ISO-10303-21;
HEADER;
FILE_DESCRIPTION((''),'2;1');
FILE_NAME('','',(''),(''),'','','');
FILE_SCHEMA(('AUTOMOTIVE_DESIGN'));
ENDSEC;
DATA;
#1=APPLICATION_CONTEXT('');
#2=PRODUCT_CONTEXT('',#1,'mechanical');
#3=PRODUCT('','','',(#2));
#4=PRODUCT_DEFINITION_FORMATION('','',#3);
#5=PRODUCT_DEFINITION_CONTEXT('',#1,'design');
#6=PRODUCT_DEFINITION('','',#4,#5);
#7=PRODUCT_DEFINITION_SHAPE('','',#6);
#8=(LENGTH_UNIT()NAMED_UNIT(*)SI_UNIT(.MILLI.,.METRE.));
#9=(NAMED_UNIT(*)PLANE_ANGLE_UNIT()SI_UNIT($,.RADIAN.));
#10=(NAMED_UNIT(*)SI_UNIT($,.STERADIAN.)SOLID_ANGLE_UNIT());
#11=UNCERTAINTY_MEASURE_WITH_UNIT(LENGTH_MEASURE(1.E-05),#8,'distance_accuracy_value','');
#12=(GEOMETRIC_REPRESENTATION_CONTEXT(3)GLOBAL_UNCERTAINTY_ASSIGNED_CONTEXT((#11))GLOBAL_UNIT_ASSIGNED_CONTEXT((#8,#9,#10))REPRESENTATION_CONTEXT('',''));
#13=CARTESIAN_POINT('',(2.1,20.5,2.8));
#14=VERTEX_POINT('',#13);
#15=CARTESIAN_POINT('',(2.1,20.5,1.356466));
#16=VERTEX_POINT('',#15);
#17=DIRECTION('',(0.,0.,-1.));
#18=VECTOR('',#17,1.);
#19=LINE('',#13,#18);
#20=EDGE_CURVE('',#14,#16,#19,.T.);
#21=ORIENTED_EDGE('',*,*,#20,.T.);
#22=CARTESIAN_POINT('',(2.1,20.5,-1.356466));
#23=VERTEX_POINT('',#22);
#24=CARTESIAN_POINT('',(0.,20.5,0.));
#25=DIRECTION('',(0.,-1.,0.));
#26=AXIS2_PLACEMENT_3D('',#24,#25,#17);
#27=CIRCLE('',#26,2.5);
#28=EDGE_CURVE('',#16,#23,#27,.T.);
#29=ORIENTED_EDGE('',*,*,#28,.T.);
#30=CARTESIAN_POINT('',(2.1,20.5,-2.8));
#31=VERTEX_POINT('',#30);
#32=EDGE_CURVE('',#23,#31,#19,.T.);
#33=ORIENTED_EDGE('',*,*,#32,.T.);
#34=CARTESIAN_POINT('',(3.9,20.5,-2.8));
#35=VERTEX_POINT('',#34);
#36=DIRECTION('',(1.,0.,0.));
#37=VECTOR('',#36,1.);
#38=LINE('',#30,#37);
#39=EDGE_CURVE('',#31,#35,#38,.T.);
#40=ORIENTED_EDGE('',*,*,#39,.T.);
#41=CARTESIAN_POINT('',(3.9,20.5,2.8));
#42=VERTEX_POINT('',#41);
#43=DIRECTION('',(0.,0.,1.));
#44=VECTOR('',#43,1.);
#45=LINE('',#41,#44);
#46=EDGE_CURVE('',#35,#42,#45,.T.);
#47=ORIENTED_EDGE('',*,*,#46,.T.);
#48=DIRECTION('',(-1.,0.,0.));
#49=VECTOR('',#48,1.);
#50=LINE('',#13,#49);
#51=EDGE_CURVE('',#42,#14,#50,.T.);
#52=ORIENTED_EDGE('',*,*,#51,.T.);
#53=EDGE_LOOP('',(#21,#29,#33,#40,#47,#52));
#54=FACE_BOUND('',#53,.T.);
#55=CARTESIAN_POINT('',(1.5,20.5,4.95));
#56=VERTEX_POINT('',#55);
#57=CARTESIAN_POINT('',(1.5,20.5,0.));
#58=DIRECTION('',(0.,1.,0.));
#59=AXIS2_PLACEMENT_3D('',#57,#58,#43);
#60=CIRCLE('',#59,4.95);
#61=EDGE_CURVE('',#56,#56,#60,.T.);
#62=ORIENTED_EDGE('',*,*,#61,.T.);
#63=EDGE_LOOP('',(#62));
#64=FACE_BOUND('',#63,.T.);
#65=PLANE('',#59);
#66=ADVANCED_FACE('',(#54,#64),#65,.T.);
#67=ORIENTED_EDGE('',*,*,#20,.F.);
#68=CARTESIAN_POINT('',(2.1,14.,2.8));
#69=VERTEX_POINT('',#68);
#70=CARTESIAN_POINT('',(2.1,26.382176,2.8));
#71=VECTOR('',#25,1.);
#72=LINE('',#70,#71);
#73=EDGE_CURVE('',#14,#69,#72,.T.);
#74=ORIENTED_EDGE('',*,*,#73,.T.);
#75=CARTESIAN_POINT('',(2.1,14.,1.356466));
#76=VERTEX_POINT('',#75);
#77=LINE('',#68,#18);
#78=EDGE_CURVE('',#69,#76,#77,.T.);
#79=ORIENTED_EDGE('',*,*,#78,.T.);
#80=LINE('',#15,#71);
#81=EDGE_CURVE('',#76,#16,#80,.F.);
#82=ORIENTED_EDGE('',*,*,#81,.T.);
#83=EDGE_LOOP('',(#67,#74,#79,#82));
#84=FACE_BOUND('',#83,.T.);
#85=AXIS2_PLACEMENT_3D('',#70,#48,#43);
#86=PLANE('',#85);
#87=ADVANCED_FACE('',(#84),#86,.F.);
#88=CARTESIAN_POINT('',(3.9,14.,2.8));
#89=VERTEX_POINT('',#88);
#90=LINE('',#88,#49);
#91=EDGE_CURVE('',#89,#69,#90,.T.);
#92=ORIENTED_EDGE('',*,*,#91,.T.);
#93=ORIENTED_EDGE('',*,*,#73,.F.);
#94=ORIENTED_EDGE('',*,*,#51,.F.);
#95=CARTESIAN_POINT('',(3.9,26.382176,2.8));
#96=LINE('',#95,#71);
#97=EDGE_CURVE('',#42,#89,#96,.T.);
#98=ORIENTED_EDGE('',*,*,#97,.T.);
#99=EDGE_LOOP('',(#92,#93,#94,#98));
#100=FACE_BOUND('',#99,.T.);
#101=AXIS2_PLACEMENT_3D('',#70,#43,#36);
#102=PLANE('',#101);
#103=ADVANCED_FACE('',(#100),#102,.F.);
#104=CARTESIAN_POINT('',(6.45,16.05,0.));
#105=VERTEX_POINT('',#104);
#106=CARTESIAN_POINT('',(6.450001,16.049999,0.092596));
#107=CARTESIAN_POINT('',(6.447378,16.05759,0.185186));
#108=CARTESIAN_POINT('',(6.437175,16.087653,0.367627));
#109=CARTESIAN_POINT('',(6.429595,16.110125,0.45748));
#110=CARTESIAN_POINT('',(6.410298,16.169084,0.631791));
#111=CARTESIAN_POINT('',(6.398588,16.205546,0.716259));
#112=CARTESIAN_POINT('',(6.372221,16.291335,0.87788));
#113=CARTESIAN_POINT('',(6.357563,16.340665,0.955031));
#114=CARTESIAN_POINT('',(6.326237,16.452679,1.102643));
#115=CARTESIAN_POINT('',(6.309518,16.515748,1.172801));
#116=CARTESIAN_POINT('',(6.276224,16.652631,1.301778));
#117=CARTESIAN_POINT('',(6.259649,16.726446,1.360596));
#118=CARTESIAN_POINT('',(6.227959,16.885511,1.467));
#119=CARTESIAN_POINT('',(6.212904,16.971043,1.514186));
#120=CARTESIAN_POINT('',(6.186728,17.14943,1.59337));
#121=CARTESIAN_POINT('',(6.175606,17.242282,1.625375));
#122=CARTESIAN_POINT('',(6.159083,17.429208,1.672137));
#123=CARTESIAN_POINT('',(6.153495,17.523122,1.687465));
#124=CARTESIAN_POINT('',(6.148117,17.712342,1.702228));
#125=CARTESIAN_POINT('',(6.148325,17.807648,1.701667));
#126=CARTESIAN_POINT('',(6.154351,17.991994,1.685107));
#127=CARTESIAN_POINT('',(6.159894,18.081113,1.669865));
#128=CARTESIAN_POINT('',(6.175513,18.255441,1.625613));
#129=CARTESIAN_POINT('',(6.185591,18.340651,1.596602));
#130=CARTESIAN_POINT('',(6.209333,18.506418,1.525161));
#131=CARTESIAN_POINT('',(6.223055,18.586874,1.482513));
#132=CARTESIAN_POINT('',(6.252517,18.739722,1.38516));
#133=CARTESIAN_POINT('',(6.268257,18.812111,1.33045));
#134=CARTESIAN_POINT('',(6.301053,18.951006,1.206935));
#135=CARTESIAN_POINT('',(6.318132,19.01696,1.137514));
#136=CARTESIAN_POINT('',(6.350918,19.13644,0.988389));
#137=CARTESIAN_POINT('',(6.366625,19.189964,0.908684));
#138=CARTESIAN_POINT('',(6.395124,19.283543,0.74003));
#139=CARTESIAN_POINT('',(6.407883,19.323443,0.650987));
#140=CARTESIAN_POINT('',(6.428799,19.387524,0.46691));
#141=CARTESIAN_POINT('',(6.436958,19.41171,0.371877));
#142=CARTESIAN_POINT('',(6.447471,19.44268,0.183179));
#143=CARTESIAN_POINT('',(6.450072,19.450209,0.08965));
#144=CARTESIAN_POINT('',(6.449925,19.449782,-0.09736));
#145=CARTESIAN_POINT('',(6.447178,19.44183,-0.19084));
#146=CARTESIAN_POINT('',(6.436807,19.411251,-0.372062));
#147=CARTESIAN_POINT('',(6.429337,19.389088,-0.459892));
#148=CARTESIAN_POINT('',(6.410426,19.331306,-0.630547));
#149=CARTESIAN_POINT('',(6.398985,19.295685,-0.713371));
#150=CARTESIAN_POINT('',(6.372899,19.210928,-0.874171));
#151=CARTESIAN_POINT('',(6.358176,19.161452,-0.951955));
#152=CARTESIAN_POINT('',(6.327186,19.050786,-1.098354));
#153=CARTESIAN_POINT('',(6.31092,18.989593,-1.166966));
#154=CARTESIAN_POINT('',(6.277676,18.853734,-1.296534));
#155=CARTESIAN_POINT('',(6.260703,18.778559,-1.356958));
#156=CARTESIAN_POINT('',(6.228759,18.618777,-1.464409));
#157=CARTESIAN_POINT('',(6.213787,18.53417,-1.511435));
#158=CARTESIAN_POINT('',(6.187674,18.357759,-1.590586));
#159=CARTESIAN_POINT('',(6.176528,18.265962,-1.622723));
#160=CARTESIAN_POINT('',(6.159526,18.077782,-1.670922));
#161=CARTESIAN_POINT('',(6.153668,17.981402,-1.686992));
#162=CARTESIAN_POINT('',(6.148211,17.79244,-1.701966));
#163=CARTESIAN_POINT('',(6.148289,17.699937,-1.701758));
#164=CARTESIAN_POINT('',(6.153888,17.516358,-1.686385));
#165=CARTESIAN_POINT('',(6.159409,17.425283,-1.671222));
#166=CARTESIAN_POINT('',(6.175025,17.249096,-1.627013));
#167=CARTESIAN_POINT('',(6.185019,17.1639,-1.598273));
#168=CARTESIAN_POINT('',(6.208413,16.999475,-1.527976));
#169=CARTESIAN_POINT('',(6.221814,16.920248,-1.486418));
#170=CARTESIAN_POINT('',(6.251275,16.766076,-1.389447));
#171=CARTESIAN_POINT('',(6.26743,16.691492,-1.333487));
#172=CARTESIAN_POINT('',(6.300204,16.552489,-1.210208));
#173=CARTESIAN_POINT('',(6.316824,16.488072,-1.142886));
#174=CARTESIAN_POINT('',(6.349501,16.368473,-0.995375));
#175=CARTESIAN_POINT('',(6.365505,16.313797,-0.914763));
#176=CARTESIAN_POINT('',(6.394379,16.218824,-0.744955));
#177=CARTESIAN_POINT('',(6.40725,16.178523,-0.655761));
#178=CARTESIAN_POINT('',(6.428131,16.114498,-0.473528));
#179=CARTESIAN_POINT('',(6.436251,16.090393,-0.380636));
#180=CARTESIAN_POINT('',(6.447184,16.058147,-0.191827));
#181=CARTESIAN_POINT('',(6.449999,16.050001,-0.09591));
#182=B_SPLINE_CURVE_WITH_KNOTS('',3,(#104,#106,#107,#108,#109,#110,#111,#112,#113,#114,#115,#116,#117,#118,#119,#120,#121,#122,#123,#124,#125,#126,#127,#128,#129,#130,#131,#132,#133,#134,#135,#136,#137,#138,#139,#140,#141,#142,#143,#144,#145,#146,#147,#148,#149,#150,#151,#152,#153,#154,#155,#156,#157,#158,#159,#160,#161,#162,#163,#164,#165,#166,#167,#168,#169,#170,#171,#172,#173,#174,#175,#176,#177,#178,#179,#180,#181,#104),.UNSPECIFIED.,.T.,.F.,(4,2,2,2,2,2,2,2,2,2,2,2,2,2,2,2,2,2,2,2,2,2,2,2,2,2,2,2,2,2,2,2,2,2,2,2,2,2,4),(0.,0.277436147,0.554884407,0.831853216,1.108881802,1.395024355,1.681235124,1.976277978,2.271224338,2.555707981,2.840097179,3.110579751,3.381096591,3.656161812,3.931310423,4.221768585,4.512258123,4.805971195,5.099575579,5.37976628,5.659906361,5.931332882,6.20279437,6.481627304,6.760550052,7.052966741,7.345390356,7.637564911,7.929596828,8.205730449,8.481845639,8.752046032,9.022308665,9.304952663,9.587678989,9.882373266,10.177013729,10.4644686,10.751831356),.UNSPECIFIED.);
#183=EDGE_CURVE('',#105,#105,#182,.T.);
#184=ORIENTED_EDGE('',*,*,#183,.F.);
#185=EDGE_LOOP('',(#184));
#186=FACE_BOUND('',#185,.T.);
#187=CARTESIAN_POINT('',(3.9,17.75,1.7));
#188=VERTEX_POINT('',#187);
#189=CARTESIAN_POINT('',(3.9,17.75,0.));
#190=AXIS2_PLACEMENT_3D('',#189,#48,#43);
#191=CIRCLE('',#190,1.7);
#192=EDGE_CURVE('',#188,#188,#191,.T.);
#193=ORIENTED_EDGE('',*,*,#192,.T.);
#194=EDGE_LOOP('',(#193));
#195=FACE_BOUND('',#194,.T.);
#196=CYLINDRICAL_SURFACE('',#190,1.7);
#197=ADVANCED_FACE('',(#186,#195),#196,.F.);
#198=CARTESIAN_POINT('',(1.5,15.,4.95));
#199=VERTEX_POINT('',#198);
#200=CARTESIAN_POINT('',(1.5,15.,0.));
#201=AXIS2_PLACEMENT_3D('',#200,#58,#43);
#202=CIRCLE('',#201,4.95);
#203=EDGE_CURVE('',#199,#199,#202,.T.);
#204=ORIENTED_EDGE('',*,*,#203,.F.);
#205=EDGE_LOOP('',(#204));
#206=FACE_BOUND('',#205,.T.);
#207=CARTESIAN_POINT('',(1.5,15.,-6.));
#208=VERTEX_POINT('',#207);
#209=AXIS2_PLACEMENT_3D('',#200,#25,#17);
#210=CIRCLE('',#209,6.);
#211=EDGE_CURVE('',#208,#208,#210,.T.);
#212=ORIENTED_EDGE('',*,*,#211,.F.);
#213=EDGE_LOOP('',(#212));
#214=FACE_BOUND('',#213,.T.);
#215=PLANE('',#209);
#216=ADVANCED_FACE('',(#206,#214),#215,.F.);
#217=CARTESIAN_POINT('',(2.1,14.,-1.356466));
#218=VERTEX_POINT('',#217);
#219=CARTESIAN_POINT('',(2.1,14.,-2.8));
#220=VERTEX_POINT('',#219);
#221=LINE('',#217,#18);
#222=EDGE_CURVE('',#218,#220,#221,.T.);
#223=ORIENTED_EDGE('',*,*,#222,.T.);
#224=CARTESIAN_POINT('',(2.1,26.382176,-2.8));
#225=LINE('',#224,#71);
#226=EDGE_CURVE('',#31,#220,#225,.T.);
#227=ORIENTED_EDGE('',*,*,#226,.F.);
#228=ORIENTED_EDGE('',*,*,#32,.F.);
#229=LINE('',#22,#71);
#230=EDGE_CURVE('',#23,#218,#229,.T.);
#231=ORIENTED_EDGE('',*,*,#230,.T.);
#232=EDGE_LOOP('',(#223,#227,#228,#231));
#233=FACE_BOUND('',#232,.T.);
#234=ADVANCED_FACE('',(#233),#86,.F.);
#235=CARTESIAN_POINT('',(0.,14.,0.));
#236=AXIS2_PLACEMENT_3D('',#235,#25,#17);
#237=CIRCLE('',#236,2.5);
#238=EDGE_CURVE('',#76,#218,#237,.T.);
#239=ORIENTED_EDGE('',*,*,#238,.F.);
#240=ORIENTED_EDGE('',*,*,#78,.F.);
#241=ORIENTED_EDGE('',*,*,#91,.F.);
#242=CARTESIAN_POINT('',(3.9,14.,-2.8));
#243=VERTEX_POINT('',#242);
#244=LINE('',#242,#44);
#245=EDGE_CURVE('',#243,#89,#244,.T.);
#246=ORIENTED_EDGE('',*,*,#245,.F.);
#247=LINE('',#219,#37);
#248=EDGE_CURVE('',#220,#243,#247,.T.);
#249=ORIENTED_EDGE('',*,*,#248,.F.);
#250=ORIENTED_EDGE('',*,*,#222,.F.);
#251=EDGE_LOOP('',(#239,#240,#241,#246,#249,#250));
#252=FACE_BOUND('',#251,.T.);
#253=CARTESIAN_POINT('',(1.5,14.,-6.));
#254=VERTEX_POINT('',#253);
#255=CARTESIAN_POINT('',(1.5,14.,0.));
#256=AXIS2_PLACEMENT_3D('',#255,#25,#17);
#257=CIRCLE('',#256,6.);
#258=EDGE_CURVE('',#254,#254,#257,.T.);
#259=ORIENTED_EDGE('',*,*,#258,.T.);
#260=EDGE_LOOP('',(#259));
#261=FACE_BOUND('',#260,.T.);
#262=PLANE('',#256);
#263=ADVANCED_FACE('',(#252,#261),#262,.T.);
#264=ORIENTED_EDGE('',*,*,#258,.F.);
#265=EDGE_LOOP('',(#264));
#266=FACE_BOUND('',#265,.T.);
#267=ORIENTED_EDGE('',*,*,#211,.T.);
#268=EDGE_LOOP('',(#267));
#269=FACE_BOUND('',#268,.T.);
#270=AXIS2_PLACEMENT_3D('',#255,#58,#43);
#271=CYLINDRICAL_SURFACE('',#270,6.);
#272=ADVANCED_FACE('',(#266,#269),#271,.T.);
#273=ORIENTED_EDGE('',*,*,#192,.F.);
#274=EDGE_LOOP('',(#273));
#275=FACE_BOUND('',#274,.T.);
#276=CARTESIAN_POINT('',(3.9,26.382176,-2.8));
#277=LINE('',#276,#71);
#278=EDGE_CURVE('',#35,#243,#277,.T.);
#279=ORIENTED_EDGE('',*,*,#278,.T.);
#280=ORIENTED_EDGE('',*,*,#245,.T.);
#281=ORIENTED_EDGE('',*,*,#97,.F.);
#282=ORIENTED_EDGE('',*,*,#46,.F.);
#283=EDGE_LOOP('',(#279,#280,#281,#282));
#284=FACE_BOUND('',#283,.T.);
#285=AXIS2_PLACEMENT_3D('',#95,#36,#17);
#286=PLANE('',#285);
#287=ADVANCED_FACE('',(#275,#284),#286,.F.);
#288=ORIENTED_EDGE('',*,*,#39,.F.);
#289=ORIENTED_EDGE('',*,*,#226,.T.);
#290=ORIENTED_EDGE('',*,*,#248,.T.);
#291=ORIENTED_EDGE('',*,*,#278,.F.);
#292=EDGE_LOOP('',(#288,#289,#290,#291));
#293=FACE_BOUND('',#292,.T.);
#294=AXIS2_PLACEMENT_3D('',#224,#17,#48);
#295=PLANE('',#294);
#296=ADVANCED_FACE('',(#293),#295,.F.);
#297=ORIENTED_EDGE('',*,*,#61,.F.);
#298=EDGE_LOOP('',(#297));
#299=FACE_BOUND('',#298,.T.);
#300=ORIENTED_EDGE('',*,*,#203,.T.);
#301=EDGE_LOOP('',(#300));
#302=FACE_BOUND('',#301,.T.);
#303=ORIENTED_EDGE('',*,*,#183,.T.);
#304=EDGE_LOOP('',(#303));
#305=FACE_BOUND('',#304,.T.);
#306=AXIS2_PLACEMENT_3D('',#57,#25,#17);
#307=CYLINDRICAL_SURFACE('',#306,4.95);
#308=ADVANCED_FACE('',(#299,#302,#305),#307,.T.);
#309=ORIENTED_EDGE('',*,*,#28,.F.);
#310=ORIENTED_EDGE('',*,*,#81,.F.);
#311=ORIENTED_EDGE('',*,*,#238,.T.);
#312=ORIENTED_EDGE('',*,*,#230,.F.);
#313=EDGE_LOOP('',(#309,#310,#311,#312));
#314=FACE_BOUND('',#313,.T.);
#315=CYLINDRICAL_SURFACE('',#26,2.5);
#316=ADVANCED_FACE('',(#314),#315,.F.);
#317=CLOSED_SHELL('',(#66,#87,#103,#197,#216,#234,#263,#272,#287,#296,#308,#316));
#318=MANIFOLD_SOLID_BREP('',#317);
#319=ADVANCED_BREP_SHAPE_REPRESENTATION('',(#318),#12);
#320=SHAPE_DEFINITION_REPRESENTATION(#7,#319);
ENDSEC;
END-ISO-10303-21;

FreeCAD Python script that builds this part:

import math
import FreeCAD as App
import Part
import Sketcher

V = App.Vector
Q = App.Units.Quantity


def add_polygon(sketch, points):
    """Adds a closed chain of lines whose ends are joined by coincident constraints."""
    first, n = sketch.GeometryCount, len(points)
    for a, b in zip(points, points[1:] + points[:1]):
        sketch.addGeometry(Part.LineSegment(App.Vector(*a, 0), App.Vector(*b, 0)), False)
    for i in range(n):
        sketch.addConstraint(Sketcher.Constraint("Coincident", first + i, 2, first + (i + 1) % n, 1))

doc = App.newDocument("Part")
body = doc.addObject("PartDesign::Body", "Body")

sketch1 = doc.addObject("Sketcher::SketchObject", "Sketch")
body.addObject(sketch1)
sketch1.AttachmentSupport = (doc.XZ_Plane, [""])
sketch1.MapMode = "FlatFace"
sketch1.addGeometry(Part.Circle(V(0, 0, 0), V(0, 0, 1), 2.5), False)
sketch1.addConstraint(Sketcher.Constraint("Coincident", 0, 3, -1, 1))
sketch1.addConstraint(Sketcher.Constraint("Diameter", 0, Q("5 mm")))
pad1 = doc.addObject("PartDesign::Pad", "Pad")
body.addObject(pad1)
pad1.Profile = sketch1
pad1.Length = 15
pad1.Reversed = True

sketch2 = doc.addObject("Sketcher::SketchObject", "Sketch001")
body.addObject(sketch2)
sketch2.AttachmentSupport = (doc.XZ_Plane, [""])
sketch2.MapMode = "FlatFace"
sketch2.AttachmentOffset = App.Placement(V(0, 0, -15), App.Rotation())
sketch2.addGeometry(Part.Circle(V(1.5, 0, 0), V(0, 0, 1), 5), False)
sketch2.addConstraint(Sketcher.Constraint("PointOnObject", 0, 3, -1))
sketch2.addConstraint(Sketcher.Constraint("Diameter", 0, Q("9.9 mm")))
sketch2.addConstraint(Sketcher.Constraint("DistanceX", -1, 1, 0, 3, Q("1.5 mm")))
pad2 = doc.addObject("PartDesign::Pad", "Pad001")
body.addObject(pad2)
pad2.Profile = sketch2
pad2.Length = 5.5
pad2.Reversed = True

sketch3 = doc.addObject("Sketcher::SketchObject", "Sketch002")
body.addObject(sketch3)
sketch3.AttachmentSupport = (doc.XZ_Plane, [""])
sketch3.MapMode = "FlatFace"
sketch3.AttachmentOffset = App.Placement(V(0, 0, -15), App.Rotation())
add_polygon(sketch3, [(2.1, 2.8), (2.1, -2.8), (3.9, -2.8), (3.9, 2.8)])
sketch3.addConstraint(Sketcher.Constraint("Vertical", 0))
sketch3.addConstraint(Sketcher.Constraint("Horizontal", 1))
sketch3.addConstraint(Sketcher.Constraint("Vertical", 2))
sketch3.addConstraint(Sketcher.Constraint("Horizontal", 3))
sketch3.addConstraint(Sketcher.Constraint("DistanceX", 1, 1, 1, 2, Q("1.8 mm")))
sketch3.addConstraint(Sketcher.Constraint("DistanceY", 0, 2, 0, 1, Q("5.6 mm")))
sketch3.addConstraint(Sketcher.Constraint("DistanceX", -1, 1, 0, 2, Q("2.1 mm")))
sketch3.addConstraint(Sketcher.Constraint("DistanceY", 0, 2, -1, 1, Q("2.8 mm")))
pocket1 = doc.addObject("PartDesign::Pocket", "Pocket")
body.addObject(pocket1)
pocket1.Profile = sketch3
pocket1.Length = 5.5

sketch4 = doc.addObject("Sketcher::SketchObject", "Sketch003")
body.addObject(sketch4)
sketch4.AttachmentSupport = (doc.XZ_Plane, [""])
sketch4.MapMode = "FlatFace"
sketch4.addGeometry(Part.Circle(V(0, 0, 0), V(0, 0, 1), 2.5), False)
sketch4.addConstraint(Sketcher.Constraint("Coincident", 0, 3, -1, 1))
sketch4.addConstraint(Sketcher.Constraint("Diameter", 0, Q("5 mm")))
pocket2 = doc.addObject("PartDesign::Pocket", "Pocket001")
body.addObject(pocket2)
pocket2.Profile = sketch4
pocket2.Type = "ThroughAll"

sketch5 = doc.addObject("Sketcher::SketchObject", "Sketch004")
body.addObject(sketch5)
sketch5.AttachmentSupport = (doc.XZ_Plane, [""])
sketch5.MapMode = "FlatFace"
sketch5.AttachmentOffset = App.Placement(V(0, 0, -17.75), App.Rotation())
add_polygon(sketch5, [(6.5, 0), (3.9, 0), (3.9, 1.7), (6.5, 1.7)])
sketch5.addConstraint(Sketcher.Constraint("Horizontal", 0))
sketch5.addConstraint(Sketcher.Constraint("Vertical", 1))
sketch5.addConstraint(Sketcher.Constraint("Horizontal", 2))
sketch5.addConstraint(Sketcher.Constraint("Vertical", 3))
sketch5.addConstraint(Sketcher.Constraint("PointOnObject", 0, 2, -1))
sketch5.addConstraint(Sketcher.Constraint("DistanceY", 1, 1, 1, 2, Q("1.7 mm")))
sketch5.addConstraint(Sketcher.Constraint("DistanceX", 0, 2, 0, 1, Q("2.55 mm")))
sketch5.addConstraint(Sketcher.Constraint("DistanceX", -1, 1, 0, 2, Q("3.9 mm")))
groove = doc.addObject("PartDesign::Groove", "Groove")
body.addObject(groove)
groove.Profile = sketch5
groove.ReferenceAxis = (sketch5, ["H_Axis"])
groove.Angle = 360

sketch6 = doc.addObject("Sketcher::SketchObject", "Sketch005")
body.addObject(sketch6)
sketch6.AttachmentSupport = (doc.XZ_Plane, [""])
sketch6.MapMode = "FlatFace"
sketch6.AttachmentOffset = App.Placement(V(0, 0, -14), App.Rotation())
sketch6.addGeometry(Part.Circle(V(1.5, 0, 0), V(0, 0, 1), 6), False)
sketch6.addGeometry(Part.LineSegment(V(2.1, 1.4, 0), V(2.1, 2.8, 0)), False)
sketch6.addGeometry(Part.LineSegment(V(2.1, 2.8, 0), V(3.9, 2.8, 0)), False)
sketch6.addGeometry(Part.LineSegment(V(3.9, 2.8, 0), V(3.9, -2.8, 0)), False)
sketch6.addGeometry(Part.LineSegment(V(3.9, -2.8, 0), V(2.1, -2.8, 0)), False)
sketch6.addGeometry(Part.LineSegment(V(2.1, -2.8, 0), V(2.1, -1.4, 0)), False)
sketch6.addGeometry(Part.ArcOfCircle(Part.Circle(V(0, 0, 0), V(0, 0, 1), 2.5), math.radians(33), math.radians(327)), False)
sketch6.addConstraint(Sketcher.Constraint("Coincident", 1, 2, 2, 1))
sketch6.addConstraint(Sketcher.Constraint("Coincident", 2, 2, 3, 1))
sketch6.addConstraint(Sketcher.Constraint("Coincident", 3, 2, 4, 1))
sketch6.addConstraint(Sketcher.Constraint("Coincident", 4, 2, 5, 1))
sketch6.addConstraint(Sketcher.Constraint("Coincident", 5, 2, 6, 2))
sketch6.addConstraint(Sketcher.Constraint("Coincident", 6, 1, 1, 1))
sketch6.addConstraint(Sketcher.Constraint("Vertical", 1))
sketch6.addConstraint(Sketcher.Constraint("Horizontal", 2))
sketch6.addConstraint(Sketcher.Constraint("Vertical", 3))
sketch6.addConstraint(Sketcher.Constraint("Horizontal", 4))
sketch6.addConstraint(Sketcher.Constraint("Vertical", 5))
sketch6.addConstraint(Sketcher.Constraint("Coincident", 6, 3, -1, 1))
sketch6.addConstraint(Sketcher.Constraint("Symmetric", 1, 2, 4, 2, -1))
sketch6.addConstraint(Sketcher.Constraint("PointOnObject", 0, 3, -1))
sketch6.addConstraint(Sketcher.Constraint("Diameter", 0, Q("12 mm")))
sketch6.addConstraint(Sketcher.Constraint("Radius", 6, Q("2.5 mm")))
sketch6.addConstraint(Sketcher.Constraint("DistanceX", 2, 1, 2, 2, Q("1.8 mm")))
sketch6.addConstraint(Sketcher.Constraint("DistanceY", 3, 2, 3, 1, Q("5.6 mm")))
sketch6.addConstraint(Sketcher.Constraint("DistanceX", -1, 1, 0, 3, Q("1.5 mm")))
sketch6.addConstraint(Sketcher.Constraint("DistanceX", -1, 1, 1, 2, Q("2.1 mm")))
pad3 = doc.addObject("PartDesign::Pad", "Pad002")
body.addObject(pad3)
pad3.Profile = sketch6
pad3.Length = 1
pad3.Reversed = True

doc.recompute()
